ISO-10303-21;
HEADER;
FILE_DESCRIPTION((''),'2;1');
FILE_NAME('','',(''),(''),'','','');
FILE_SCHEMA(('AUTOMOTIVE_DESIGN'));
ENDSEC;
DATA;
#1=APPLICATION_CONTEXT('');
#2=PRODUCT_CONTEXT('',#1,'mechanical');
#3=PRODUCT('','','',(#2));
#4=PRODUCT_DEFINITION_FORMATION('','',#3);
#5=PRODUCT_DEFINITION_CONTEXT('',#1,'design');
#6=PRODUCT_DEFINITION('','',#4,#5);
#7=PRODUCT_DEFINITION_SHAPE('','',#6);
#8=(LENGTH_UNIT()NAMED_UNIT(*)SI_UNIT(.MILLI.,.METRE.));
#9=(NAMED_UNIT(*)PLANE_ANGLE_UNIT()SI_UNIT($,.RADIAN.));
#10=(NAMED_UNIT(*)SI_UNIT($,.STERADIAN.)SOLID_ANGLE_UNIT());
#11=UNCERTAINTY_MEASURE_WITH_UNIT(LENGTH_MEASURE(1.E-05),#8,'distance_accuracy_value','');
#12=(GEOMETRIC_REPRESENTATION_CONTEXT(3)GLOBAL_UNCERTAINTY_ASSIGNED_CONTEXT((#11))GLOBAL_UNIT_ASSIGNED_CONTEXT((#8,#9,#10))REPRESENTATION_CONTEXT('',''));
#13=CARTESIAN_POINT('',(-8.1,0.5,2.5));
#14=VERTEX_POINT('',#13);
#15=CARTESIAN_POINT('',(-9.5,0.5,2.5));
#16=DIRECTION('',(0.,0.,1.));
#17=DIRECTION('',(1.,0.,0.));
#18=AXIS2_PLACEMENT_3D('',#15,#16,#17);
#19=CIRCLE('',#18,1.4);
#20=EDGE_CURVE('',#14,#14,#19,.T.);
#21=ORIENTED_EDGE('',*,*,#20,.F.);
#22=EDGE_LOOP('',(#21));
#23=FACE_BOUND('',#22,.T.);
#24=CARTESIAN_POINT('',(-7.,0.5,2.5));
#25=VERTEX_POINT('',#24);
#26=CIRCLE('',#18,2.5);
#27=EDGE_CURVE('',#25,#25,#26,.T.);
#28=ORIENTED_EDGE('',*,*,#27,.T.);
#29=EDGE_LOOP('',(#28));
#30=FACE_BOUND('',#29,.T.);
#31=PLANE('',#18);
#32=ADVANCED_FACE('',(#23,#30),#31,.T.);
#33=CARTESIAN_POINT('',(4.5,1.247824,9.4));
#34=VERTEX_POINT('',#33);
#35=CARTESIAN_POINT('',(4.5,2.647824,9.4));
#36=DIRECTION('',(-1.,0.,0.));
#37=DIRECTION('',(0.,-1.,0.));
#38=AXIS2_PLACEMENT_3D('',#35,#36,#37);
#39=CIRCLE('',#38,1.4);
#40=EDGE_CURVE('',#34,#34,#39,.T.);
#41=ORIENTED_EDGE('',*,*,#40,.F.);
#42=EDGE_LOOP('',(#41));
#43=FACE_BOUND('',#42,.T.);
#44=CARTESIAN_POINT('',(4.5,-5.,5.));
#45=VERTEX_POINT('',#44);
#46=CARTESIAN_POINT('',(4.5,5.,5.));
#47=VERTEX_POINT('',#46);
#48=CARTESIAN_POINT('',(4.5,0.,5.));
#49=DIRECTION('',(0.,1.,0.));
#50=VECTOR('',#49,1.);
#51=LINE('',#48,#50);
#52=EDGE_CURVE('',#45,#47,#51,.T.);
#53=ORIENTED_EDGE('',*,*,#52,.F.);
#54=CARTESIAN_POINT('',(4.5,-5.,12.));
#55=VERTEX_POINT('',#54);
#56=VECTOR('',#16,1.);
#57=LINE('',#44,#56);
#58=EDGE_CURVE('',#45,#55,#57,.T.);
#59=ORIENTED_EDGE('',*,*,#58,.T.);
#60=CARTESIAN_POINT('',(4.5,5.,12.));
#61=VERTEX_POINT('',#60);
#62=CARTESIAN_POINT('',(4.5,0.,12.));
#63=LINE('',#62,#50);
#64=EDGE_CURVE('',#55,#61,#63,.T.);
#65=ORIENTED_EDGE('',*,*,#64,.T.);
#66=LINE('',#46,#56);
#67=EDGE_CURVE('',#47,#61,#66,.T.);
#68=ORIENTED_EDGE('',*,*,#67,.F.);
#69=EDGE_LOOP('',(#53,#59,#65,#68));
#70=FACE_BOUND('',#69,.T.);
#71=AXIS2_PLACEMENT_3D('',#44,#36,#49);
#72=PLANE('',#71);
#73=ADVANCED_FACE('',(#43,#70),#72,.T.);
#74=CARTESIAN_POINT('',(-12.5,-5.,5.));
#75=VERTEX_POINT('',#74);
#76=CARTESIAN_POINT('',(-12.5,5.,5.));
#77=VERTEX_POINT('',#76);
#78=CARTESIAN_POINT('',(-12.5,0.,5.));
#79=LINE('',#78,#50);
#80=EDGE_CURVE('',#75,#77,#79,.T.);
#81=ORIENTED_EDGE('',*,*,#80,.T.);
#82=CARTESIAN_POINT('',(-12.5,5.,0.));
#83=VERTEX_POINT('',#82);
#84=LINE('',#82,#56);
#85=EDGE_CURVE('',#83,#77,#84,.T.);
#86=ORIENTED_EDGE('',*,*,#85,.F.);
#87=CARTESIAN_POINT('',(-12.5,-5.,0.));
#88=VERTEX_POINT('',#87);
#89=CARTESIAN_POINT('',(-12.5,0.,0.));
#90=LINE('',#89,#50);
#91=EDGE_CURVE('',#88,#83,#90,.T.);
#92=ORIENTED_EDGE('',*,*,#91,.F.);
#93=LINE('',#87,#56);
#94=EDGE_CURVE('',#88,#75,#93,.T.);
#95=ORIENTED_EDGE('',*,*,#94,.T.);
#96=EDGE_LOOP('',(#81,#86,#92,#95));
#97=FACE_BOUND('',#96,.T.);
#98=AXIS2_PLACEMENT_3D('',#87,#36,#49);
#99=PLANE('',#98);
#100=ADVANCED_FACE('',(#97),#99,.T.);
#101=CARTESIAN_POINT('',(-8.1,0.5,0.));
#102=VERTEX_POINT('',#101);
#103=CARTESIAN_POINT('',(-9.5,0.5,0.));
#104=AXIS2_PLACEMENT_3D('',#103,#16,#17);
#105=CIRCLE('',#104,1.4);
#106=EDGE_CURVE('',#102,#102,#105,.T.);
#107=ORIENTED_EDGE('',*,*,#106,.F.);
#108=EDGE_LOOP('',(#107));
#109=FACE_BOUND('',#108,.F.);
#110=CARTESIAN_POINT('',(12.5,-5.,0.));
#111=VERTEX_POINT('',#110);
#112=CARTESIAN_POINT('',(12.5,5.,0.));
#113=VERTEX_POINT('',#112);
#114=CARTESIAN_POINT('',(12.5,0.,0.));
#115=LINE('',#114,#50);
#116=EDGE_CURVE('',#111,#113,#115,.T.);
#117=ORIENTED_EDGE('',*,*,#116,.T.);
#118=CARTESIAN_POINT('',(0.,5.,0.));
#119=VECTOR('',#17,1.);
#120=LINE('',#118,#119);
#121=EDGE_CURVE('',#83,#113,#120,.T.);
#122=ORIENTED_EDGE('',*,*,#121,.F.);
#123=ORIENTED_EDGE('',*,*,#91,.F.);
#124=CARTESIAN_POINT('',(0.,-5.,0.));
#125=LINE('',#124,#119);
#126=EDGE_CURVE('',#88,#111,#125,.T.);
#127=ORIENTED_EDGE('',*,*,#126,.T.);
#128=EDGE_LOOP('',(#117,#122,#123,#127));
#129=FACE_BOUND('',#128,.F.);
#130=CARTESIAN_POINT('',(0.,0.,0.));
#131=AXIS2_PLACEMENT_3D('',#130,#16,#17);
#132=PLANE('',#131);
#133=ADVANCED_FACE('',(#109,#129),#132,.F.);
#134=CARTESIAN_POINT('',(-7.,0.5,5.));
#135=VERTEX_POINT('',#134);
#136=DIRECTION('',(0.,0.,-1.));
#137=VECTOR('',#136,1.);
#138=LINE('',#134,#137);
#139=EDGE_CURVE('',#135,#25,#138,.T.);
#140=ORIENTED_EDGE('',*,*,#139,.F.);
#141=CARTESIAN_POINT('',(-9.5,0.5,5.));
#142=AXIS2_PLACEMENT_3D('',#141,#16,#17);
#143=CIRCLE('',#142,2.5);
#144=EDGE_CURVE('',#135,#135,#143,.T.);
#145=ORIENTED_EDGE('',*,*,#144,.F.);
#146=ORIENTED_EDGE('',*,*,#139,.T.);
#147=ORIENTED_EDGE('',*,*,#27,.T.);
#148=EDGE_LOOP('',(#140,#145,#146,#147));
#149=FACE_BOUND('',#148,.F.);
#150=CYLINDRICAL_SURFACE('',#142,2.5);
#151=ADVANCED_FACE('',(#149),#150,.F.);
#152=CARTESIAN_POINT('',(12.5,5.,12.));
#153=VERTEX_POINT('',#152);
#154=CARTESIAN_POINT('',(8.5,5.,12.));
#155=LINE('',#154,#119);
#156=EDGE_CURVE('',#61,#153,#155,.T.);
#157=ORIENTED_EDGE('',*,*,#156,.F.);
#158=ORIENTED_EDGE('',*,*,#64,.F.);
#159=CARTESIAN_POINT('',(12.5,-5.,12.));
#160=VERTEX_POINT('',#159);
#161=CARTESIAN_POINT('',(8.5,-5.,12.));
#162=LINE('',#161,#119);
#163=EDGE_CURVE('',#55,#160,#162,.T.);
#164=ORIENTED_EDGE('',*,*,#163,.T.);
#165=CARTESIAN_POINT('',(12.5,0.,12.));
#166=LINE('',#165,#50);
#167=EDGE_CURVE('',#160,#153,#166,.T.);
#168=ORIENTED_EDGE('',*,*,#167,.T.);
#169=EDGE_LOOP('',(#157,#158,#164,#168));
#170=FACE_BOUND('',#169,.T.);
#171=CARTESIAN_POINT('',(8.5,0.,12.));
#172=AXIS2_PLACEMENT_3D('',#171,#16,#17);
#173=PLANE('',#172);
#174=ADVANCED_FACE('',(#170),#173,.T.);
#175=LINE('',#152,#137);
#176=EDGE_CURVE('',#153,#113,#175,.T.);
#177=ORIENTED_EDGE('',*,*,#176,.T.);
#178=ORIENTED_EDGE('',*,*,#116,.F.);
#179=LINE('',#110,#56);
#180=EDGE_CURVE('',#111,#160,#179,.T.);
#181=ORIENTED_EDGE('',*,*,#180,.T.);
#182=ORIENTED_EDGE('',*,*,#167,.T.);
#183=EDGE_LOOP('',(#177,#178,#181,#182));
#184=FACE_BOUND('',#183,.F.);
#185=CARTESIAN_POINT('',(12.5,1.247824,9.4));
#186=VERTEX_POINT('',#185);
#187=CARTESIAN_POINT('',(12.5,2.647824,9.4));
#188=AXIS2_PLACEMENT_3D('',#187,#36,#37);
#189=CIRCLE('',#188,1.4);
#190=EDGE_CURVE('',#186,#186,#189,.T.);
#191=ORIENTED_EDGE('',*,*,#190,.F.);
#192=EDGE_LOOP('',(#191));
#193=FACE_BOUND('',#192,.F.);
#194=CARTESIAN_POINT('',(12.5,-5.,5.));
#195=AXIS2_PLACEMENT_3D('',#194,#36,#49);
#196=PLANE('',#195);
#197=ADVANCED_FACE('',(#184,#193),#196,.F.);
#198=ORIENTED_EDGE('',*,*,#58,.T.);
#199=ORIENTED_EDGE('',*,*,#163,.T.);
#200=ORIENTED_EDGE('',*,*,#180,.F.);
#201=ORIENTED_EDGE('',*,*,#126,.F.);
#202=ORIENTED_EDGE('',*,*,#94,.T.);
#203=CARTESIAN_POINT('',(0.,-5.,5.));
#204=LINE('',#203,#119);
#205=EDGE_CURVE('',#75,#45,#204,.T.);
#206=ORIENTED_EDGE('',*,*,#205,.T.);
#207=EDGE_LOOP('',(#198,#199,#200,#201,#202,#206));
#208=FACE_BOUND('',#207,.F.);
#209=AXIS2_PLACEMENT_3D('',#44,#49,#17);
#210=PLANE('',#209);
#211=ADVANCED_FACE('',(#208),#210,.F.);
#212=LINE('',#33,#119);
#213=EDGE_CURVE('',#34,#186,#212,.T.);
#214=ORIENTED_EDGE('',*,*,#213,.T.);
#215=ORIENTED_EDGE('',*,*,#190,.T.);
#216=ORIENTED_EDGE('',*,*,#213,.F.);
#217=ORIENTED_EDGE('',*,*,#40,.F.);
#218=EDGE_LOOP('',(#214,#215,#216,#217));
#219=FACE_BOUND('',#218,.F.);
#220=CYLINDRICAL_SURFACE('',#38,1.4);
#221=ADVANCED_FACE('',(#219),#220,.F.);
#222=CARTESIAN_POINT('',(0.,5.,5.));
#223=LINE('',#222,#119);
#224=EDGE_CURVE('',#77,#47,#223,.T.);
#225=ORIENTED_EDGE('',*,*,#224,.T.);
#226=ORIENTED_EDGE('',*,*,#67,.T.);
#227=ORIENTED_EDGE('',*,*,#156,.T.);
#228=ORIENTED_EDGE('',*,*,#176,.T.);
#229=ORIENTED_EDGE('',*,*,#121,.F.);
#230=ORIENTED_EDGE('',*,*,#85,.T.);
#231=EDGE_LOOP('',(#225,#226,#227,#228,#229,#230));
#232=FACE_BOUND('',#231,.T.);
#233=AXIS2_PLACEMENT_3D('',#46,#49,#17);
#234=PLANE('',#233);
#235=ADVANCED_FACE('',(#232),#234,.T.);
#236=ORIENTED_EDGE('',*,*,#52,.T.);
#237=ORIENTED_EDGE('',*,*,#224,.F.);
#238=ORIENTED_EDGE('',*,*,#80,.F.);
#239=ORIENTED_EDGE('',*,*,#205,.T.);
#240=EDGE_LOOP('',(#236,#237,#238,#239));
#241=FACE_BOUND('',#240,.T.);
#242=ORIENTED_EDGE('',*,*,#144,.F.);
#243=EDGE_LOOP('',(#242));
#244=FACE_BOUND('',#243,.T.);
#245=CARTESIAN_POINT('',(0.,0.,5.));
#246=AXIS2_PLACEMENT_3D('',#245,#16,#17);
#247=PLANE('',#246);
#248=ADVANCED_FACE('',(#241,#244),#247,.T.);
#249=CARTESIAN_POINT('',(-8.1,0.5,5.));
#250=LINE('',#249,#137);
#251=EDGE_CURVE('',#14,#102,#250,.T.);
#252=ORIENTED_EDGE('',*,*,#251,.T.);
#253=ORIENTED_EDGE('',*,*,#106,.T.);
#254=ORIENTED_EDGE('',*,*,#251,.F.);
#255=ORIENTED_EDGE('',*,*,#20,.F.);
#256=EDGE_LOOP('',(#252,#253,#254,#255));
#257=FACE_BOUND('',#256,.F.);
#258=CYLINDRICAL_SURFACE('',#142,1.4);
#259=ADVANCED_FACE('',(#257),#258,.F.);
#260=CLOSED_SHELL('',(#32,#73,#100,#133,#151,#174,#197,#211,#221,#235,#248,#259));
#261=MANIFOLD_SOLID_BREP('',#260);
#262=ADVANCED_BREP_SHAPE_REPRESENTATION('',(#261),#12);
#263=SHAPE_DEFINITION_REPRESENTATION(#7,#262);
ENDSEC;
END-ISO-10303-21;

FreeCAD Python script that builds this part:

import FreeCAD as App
import Part
import Sketcher

V = App.Vector
Q = App.Units.Quantity

doc = App.newDocument("Part")
body = doc.addObject("PartDesign::Body", "Body")

sketch1 = doc.addObject("Sketcher::SketchObject", "Sketch")
body.addObject(sketch1)
sketch1.AttachmentSupport = (doc.XY_Plane, [""])
sketch1.MapMode = "FlatFace"
sketch1.addGeometry([
    Part.LineSegment(V(-12, 5, 0), V(-12, -5, 0)),
    Part.LineSegment(V(-12, -5, 0), V(12, -5, 0)),
    Part.LineSegment(V(12, -5, 0), V(12, 5, 0)),
    Part.LineSegment(V(12, 5, 0), V(-12, 5, 0)),
], False)
sketch1.addConstraint([
    Sketcher.Constraint("Coincident", 0, 2, 1, 1),
    Sketcher.Constraint("Coincident", 1, 2, 2, 1),
    Sketcher.Constraint("Coincident", 2, 2, 3, 1),
    Sketcher.Constraint("Coincident", 3, 2, 0, 1),
    Sketcher.Constraint("Vertical", 0),
    Sketcher.Constraint("Horizontal", 1),
    Sketcher.Constraint("Vertical", 2),
    Sketcher.Constraint("Horizontal", 3),
    Sketcher.Constraint("Symmetric", 0, 2, 2, 2, -1, 1),
    Sketcher.Constraint("DistanceX", 1, 1, 1, 2, Q("25 mm")),
    Sketcher.Constraint("DistanceY", 0, 2, 0, 1, Q("10 mm")),
])
pad1 = doc.addObject("PartDesign::Pad", "Pad")
body.addObject(pad1)
pad1.Profile = sketch1
pad1.Length = 5

sketch2 = doc.addObject("Sketcher::SketchObject", "Sketch001")
body.addObject(sketch2)
sketch2.AttachmentSupport = (doc.XY_Plane, [""])
sketch2.MapMode = "FlatFace"
sketch2.AttachmentOffset = App.Placement(V(0, 0, 5), App.Rotation())
sketch2.addGeometry(Part.Circle(V(-9.5, 0.5, 0), V(0, 0, 1), 1.4), False)
sketch2.addConstraint([
    Sketcher.Constraint("Diameter", 0, Q("2.8 mm")),
    Sketcher.Constraint("DistanceX", 0, 3, -1, 1, Q("9.5 mm")),
    Sketcher.Constraint("DistanceY", -1, 1, 0, 3, Q("0.5 mm")),
])
pocket1 = doc.addObject("PartDesign::Pocket", "Pocket")
body.addObject(pocket1)
pocket1.Profile = sketch2
pocket1.Length = 25

sketch3 = doc.addObject("Sketcher::SketchObject", "Sketch002")
body.addObject(sketch3)
sketch3.AttachmentSupport = (doc.XY_Plane, [""])
sketch3.MapMode = "FlatFace"
sketch3.AttachmentOffset = App.Placement(V(0, 0, 5), App.Rotation())
sketch3.addGeometry([
    Part.LineSegment(V(4, 5, 0), V(4, -5, 0)),
    Part.LineSegment(V(4, -5, 0), V(12, -5, 0)),
    Part.LineSegment(V(12, -5, 0), V(12, 5, 0)),
    Part.LineSegment(V(12, 5, 0), V(4, 5, 0)),
], False)
sketch3.addConstraint([
    Sketcher.Constraint("Coincident", 0, 2, 1, 1),
    Sketcher.Constraint("Coincident", 1, 2, 2, 1),
    Sketcher.Constraint("Coincident", 2, 2, 3, 1),
    Sketcher.Constraint("Coincident", 3, 2, 0, 1),
    Sketcher.Constraint("Vertical", 0),
    Sketcher.Constraint("Horizontal", 1),
    Sketcher.Constraint("Vertical", 2),
    Sketcher.Constraint("Horizontal", 3),
    Sketcher.Constraint("DistanceX", 1, 1, 1, 2, Q("8 mm")),
    Sketcher.Constraint("DistanceY", 0, 2, 0, 1, Q("10 mm")),
    Sketcher.Constraint("DistanceY", 0, 2, -1, 1, Q("5 mm")),
    Sketcher.Constraint("DistanceX", -1, 1, 0, 2, Q("4.5 mm")),
])
pad2 = doc.addObject("PartDesign::Pad", "Pad001")
body.addObject(pad2)
pad2.Profile = sketch3
pad2.Length = 7

sketch4 = doc.addObject("Sketcher::SketchObject", "Sketch003")
body.addObject(sketch4)
sketch4.AttachmentSupport = (doc.YZ_Plane, [""])
sketch4.MapMode = "FlatFace"
sketch4.AttachmentOffset = App.Placement(V(0, 0, 4.5), App.Rotation())
sketch4.addGeometry(Part.Circle(V(2.6, 9.4, 0), V(0, 0, 1), 1.4), False)
sketch4.addConstraint([
    Sketcher.Constraint("Diameter", 0, Q("2.8 mm")),
    Sketcher.Constraint("DistanceY", -1, 1, 0, 3, Q("9.4 mm")),
    Sketcher.Constraint("DistanceX", -1, 1, 0, 3, Q("2.647824 mm")),
])
pocket2 = doc.addObject("PartDesign::Pocket", "Pocket001")
body.addObject(pocket2)
pocket2.Profile = sketch4
pocket2.Length = 25
pocket2.Reversed = True

sketch5 = doc.addObject("Sketcher::SketchObject", "Sketch004")
body.addObject(sketch5)
sketch5.AttachmentSupport = (doc.XY_Plane, [""])
sketch5.MapMode = "FlatFace"
sketch5.AttachmentOffset = App.Placement(V(0, 0, 5), App.Rotation())
sketch5.addGeometry([
    Part.Circle(V(-9.5, 0.5, 0), V(0, 0, 1), 2.5),
    Part.Circle(V(-9.5, 0.5, 0), V(0, 0, 1), 1.4),
], False)
sketch5.addConstraint([
    Sketcher.Constraint("Coincident", 1, 3, 0, 3),
    Sketcher.Constraint("Diameter", 0, Q("5 mm")),
    Sketcher.Constraint("Diameter", 1, Q("2.8 mm")),
    Sketcher.Constraint("DistanceX", 0, 3, -1, 1, Q("9.5 mm")),
    Sketcher.Constraint("DistanceY", -1, 1, 0, 3, Q("0.5 mm")),
])
pocket3 = doc.addObject("PartDesign::Pocket", "Pocket002")
body.addObject(pocket3)
pocket3.Profile = sketch5
pocket3.Length = 2.5

doc.recompute()
